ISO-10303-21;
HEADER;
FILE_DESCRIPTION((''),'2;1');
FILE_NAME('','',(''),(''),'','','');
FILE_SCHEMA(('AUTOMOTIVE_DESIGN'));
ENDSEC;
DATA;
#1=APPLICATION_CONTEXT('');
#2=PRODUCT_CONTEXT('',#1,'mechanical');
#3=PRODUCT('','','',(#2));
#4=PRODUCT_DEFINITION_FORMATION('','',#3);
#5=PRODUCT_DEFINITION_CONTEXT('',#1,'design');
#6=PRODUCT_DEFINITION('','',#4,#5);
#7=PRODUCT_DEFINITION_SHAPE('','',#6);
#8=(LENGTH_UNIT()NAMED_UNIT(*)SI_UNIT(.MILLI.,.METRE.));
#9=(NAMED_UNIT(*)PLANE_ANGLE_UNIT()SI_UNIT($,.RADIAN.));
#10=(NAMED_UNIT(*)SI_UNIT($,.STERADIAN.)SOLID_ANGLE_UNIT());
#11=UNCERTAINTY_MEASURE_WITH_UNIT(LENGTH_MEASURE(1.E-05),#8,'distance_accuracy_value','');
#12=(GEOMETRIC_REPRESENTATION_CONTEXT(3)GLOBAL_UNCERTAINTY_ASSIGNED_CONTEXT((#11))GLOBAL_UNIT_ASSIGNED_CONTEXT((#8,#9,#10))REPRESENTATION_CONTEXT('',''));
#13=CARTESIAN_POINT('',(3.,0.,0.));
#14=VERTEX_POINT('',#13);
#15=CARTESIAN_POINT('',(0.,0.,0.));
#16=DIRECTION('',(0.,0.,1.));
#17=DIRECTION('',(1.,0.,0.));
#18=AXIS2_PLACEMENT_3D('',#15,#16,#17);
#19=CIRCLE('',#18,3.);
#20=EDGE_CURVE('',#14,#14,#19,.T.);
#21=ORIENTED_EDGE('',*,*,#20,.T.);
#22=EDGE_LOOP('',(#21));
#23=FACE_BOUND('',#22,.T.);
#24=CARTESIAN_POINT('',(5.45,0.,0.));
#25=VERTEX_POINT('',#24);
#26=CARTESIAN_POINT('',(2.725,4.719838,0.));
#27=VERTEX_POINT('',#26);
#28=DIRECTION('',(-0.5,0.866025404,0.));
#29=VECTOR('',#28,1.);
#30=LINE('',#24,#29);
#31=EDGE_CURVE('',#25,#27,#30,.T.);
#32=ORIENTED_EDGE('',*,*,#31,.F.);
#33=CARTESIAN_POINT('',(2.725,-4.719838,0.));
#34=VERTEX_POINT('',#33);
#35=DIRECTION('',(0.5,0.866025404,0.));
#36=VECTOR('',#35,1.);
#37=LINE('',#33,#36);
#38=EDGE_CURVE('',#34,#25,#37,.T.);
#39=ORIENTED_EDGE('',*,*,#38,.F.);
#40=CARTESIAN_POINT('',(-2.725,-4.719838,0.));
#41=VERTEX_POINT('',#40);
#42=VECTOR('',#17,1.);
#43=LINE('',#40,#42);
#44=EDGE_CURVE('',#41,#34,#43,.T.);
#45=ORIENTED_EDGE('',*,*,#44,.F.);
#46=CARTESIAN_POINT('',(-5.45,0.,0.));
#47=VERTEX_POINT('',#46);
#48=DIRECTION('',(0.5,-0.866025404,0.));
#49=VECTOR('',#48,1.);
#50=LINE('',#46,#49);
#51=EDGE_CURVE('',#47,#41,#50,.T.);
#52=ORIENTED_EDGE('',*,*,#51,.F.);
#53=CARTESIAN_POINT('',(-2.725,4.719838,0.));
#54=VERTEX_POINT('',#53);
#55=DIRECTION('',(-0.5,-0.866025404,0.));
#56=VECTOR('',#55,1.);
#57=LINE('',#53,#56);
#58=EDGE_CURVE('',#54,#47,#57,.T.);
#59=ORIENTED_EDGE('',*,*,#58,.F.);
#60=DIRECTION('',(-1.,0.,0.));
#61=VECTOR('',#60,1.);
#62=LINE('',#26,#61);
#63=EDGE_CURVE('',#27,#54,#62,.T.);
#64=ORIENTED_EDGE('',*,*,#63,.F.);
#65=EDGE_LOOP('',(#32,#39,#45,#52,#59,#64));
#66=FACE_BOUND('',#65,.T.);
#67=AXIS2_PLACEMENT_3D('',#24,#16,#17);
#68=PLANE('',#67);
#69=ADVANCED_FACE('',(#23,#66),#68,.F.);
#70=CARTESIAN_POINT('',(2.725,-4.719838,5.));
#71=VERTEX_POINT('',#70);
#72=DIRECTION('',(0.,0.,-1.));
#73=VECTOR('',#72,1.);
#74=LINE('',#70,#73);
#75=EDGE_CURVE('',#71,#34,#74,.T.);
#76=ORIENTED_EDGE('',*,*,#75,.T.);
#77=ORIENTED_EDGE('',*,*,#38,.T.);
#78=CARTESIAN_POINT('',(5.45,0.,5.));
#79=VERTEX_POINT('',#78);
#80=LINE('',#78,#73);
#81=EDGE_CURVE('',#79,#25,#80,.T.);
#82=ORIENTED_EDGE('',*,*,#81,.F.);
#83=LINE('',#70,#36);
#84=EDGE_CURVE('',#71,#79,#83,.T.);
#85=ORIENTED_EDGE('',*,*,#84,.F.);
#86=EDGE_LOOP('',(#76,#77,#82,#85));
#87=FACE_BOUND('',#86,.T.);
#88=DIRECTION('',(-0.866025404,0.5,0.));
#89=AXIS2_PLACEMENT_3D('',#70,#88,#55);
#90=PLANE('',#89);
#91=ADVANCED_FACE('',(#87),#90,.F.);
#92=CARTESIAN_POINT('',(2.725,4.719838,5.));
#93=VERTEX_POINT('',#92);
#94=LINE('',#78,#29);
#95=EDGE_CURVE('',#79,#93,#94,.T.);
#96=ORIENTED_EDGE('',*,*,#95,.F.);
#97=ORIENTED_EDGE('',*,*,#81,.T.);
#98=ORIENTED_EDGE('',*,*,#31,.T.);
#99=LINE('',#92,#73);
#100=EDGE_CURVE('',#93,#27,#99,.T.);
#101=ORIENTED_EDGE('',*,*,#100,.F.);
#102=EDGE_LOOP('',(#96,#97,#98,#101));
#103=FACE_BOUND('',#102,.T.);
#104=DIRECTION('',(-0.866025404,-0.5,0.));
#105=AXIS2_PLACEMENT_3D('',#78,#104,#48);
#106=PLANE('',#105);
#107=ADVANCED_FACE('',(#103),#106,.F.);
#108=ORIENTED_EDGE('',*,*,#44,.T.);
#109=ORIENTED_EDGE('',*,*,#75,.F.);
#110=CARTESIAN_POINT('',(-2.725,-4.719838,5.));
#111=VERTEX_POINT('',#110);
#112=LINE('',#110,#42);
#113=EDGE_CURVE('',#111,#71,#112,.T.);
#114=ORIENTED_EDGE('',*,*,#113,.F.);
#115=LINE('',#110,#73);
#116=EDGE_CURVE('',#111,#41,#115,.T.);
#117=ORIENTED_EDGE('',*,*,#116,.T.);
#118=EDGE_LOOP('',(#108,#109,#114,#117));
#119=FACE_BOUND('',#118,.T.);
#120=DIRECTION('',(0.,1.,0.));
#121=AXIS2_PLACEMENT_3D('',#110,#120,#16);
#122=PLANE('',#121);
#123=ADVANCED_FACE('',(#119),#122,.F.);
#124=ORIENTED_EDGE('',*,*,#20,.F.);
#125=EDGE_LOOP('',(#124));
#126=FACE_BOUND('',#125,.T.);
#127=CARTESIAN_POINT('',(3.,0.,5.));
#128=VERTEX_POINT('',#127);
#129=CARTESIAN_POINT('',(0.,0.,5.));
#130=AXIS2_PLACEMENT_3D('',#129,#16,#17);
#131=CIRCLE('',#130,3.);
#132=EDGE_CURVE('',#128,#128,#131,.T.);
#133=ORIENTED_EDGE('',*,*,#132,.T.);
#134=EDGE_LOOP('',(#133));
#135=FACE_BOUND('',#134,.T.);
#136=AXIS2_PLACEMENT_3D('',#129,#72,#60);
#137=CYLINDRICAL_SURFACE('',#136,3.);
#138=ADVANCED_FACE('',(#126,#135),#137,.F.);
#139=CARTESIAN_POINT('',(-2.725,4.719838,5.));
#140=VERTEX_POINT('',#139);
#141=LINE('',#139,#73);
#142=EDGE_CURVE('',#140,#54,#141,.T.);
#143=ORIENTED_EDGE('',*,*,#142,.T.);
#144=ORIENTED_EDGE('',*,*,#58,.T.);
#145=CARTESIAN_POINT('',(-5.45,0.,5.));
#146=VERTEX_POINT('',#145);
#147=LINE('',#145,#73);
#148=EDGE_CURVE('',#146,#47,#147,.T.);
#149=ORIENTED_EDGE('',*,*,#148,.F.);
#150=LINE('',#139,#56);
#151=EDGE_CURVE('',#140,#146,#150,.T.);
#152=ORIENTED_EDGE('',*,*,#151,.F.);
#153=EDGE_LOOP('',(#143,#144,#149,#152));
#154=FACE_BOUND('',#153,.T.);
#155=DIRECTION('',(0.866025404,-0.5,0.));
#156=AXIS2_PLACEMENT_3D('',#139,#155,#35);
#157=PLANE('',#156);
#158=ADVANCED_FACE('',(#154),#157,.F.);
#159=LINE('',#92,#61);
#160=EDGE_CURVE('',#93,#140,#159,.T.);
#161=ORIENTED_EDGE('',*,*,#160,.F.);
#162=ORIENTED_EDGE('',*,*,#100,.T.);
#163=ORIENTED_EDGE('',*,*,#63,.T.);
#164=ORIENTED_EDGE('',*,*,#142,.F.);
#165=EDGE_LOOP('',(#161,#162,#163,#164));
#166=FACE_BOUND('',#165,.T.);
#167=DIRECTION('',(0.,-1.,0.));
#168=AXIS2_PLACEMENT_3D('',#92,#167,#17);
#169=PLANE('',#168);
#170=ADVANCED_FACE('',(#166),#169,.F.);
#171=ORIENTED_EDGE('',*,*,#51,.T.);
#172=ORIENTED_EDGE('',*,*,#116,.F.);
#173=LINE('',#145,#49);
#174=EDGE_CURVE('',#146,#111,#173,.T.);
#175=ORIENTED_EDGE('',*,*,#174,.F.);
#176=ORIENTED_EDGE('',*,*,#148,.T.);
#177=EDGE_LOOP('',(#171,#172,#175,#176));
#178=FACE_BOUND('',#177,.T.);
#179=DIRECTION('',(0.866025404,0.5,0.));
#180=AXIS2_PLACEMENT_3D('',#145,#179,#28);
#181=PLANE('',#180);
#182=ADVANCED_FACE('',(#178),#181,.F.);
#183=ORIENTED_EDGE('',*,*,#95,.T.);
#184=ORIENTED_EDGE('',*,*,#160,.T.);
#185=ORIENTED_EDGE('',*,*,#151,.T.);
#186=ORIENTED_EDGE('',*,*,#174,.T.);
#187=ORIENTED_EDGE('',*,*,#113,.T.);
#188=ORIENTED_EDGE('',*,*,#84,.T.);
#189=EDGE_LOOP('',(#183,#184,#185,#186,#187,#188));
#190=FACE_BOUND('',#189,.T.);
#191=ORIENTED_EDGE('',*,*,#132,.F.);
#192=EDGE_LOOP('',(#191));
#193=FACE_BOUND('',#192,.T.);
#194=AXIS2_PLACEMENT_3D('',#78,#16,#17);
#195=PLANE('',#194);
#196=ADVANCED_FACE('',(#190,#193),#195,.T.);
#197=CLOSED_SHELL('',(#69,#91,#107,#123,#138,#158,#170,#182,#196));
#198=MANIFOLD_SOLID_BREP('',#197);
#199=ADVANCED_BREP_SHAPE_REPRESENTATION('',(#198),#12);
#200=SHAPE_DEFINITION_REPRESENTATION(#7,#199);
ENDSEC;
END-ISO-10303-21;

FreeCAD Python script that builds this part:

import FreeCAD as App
import Part
import Sketcher
from FreeCAD import Vector
Q = App.Units.Quantity


def add_polygon(sketch, points):
    """Adds a closed chain of lines whose ends are joined by coincident constraints."""
    first, n = sketch.GeometryCount, len(points)
    for a, b in zip(points, points[1:] + points[:1]):
        sketch.addGeometry(Part.LineSegment(App.Vector(*a, 0), App.Vector(*b, 0)), False)
    for i in range(n):
        sketch.addConstraint(Sketcher.Constraint("Coincident", first + i, 2, first + (i + 1) % n, 1))

doc = App.newDocument("Part")
body = doc.addObject("PartDesign::Body", "Body")

# Sketch on XY plane
sketch1 = body.newObject("Sketcher::SketchObject", "Sketch")
sketch1.AttachmentSupport = (doc.getObject("XY_Plane"), [""])
sketch1.MapMode = "FlatFace"
add_polygon(sketch1, [(5.5, 0), (2.7, 4.7), (-2.7, 4.7), (-5.5, 0), (-2.7, -4.7), (2.7, -4.7)])  # lines 0-5
sketch1.addGeometry(Part.Circle(Vector(0, 0, 0), Vector(0, 0, 1), 3), False)  # 6
sketch1.addConstraint([
    Sketcher.Constraint("Horizontal", 1),
    Sketcher.Constraint("Horizontal", 4),
    Sketcher.Constraint("Coincident", 6, 3, -1, 1),
    Sketcher.Constraint("Symmetric", 0, 2, 3, 2, -1, 1),
    Sketcher.Constraint("Symmetric", 2, 2, 5, 2, -1, 1),
    Sketcher.Constraint("PointOnObject", 2, 2, -1),
    Sketcher.Constraint("Parallel", 2, 5),
    Sketcher.Constraint("Vertical", 1, 2, 3, 2),
    Sketcher.Constraint("Diameter", 6, 6.0),
    Sketcher.Constraint("Angle", 0, Q("120 deg")),
    Sketcher.Constraint("DistanceX", 1, 2, 1, 1, 5.45),
    Sketcher.Constraint("Distance", 0, 5.45),
])
pad1 = body.newObject("PartDesign::Pad", "Pad")
pad1.Profile = sketch1
pad1.Length = 5

doc.recompute()
